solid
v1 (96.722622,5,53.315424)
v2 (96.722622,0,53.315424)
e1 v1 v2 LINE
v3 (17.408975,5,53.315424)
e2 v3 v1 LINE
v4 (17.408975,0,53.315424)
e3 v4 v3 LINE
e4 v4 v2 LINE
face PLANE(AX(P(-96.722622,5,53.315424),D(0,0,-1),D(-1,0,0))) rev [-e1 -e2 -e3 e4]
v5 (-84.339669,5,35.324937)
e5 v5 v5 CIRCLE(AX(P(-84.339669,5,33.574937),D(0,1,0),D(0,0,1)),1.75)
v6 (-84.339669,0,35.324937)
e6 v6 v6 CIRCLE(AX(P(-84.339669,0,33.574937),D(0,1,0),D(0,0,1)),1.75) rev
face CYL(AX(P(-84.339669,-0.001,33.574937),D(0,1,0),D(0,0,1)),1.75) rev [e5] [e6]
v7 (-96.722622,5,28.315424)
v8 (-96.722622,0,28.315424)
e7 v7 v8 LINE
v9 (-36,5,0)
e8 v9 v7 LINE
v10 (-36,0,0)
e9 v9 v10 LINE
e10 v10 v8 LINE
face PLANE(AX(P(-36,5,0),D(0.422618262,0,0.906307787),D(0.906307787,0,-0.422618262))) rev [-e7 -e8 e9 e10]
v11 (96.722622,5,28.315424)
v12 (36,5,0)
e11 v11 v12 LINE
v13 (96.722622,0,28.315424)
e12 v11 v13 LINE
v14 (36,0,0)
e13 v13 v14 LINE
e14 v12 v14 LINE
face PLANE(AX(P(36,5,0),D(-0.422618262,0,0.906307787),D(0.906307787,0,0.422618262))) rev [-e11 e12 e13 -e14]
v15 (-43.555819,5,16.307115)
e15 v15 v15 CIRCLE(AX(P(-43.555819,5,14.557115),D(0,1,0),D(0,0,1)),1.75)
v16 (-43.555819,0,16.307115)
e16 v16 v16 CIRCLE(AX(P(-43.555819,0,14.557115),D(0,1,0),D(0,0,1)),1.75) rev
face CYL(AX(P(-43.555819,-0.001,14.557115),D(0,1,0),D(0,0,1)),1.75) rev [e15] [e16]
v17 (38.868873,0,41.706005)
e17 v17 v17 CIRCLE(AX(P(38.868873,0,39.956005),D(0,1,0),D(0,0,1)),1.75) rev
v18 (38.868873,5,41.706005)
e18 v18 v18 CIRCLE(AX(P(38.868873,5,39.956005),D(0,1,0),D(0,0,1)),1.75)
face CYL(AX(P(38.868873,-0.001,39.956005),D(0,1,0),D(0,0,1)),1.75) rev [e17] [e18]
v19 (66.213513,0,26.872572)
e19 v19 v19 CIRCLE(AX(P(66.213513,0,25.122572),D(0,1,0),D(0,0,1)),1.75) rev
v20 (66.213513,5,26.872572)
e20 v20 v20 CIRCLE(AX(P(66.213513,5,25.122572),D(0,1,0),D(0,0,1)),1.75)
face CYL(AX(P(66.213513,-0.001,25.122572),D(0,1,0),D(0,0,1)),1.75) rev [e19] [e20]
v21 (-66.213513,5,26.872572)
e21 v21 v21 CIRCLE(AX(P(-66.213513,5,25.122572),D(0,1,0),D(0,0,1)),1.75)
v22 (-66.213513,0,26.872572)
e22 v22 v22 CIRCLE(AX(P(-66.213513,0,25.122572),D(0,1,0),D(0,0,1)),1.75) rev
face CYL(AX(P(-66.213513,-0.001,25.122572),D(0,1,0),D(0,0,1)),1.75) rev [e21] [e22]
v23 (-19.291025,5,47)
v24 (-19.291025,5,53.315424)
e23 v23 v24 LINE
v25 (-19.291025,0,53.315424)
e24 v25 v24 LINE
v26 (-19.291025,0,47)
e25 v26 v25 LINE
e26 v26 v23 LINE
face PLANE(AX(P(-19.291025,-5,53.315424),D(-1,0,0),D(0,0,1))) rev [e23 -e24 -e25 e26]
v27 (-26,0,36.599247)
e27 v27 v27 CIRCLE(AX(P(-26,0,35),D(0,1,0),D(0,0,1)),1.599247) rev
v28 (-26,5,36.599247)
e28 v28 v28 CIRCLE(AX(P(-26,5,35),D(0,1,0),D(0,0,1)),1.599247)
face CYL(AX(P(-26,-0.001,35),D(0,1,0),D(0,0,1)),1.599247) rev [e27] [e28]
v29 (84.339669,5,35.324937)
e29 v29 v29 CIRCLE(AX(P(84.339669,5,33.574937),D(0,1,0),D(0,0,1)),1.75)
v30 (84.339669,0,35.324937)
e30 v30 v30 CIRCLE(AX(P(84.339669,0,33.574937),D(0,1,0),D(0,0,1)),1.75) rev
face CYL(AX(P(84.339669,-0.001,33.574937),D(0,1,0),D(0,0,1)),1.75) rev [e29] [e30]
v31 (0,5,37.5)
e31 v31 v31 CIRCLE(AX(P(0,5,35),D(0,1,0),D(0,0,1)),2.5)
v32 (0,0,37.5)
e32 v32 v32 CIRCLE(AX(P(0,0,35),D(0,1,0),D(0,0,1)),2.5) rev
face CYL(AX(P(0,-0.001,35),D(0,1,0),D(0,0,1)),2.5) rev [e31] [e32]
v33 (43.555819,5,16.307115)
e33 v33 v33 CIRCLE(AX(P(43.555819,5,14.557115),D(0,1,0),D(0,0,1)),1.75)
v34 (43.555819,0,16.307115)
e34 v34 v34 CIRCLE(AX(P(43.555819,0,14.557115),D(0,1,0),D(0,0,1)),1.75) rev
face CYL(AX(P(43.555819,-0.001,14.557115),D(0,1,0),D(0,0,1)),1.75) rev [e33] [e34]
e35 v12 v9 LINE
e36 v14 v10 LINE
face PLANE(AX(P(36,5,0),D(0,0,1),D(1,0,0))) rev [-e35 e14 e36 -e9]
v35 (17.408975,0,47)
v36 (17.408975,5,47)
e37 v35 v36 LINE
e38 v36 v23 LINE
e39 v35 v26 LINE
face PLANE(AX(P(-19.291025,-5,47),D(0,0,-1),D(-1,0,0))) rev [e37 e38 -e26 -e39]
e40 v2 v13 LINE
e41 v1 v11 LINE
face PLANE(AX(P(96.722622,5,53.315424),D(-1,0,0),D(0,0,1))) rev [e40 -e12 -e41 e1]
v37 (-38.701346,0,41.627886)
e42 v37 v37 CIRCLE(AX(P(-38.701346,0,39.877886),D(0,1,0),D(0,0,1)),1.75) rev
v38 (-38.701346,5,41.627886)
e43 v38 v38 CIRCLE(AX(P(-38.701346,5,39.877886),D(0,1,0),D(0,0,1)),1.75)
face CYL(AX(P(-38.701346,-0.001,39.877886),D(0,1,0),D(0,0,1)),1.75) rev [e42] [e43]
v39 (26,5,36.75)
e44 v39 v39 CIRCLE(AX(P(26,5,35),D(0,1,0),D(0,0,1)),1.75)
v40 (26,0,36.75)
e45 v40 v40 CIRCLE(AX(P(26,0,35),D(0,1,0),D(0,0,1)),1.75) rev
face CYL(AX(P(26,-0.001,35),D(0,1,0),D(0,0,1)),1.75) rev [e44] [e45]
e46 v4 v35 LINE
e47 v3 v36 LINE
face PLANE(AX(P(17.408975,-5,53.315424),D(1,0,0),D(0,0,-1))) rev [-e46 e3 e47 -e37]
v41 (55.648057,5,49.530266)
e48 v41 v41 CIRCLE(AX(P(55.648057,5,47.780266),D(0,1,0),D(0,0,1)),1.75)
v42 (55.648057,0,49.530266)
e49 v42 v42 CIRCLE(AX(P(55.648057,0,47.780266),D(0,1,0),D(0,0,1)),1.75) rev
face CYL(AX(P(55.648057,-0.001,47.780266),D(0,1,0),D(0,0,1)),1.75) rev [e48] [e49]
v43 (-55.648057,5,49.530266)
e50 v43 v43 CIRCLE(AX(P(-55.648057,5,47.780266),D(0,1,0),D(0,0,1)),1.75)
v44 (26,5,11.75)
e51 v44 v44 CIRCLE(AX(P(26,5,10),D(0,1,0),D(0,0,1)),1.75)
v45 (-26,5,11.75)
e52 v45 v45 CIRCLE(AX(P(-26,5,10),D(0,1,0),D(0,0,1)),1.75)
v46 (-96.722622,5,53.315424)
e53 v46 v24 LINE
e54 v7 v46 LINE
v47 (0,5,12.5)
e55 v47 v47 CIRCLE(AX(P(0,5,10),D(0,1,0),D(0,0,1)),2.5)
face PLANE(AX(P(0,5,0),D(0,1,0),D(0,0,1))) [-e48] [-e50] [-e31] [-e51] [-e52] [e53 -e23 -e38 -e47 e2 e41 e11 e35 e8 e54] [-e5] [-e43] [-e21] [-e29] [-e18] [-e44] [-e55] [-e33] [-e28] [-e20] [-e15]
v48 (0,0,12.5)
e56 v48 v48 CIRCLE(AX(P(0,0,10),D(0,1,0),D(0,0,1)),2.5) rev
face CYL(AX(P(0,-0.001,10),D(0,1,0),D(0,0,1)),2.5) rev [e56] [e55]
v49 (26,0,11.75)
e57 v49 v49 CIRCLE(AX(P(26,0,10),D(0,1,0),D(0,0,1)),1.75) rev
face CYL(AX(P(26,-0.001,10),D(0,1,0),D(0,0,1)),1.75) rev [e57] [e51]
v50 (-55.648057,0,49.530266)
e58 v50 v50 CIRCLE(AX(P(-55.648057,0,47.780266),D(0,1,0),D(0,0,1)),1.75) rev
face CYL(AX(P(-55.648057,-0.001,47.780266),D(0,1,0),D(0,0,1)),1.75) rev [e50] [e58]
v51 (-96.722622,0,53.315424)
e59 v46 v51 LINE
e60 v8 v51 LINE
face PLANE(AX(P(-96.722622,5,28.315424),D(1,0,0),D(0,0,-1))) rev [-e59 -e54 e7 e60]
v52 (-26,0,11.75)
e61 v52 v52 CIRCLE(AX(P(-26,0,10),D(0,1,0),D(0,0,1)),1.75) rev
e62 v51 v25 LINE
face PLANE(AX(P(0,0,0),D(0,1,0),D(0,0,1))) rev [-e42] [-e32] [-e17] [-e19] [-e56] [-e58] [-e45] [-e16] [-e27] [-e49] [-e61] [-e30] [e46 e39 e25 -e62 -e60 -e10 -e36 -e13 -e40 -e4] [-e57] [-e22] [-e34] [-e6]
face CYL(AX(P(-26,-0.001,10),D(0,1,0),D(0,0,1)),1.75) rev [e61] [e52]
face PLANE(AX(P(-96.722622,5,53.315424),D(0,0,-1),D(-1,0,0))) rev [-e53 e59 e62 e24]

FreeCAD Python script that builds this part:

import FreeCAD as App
import Part
import Sketcher

V = App.Vector
Q = App.Units.Quantity


def add_polygon(sketch, points):
    """Adds a closed chain of lines whose ends are joined by coincident constraints."""
    first, n = sketch.GeometryCount, len(points)
    for a, b in zip(points, points[1:] + points[:1]):
        sketch.addGeometry(Part.LineSegment(App.Vector(*a, 0), App.Vector(*b, 0)), False)
    for i in range(n):
        sketch.addConstraint(Sketcher.Constraint("Coincident", first + i, 2, first + (i + 1) % n, 1))

doc = App.newDocument("Part")
body = doc.addObject("PartDesign::Body", "Body")

sketch1 = body.newObject("Sketcher::SketchObject", "Sketch")
sketch1.AttachmentSupport = (doc.getObject("XZ_Plane"), [""])
sketch1.MapMode = "FlatFace"
add_polygon(sketch1, [(36, 0), (-36, 0), (-97, 28), (-97, 53), (97, 53), (97, 28)])
sketch1.addConstraint(Sketcher.Constraint("Horizontal", 0))
sketch1.addConstraint(Sketcher.Constraint("Vertical", 2))
sketch1.addConstraint(Sketcher.Constraint("Horizontal", 3))
sketch1.addConstraint(Sketcher.Constraint("Vertical", 4))
sketch1.addConstraint(Sketcher.Constraint("Symmetric", 0, 2, 5, 2, -1, 1))
sketch1.addConstraint(Sketcher.Constraint("Symmetric", 1, 2, 4, 2, -2))
sketch1.addConstraint(Sketcher.Constraint("DistanceX", 0, 2, 0, 1, Q("72 mm")))
sketch1.addConstraint(Sketcher.Constraint("DistanceY", 2, 1, 2, 2, Q("25 mm")))
sketch1.addConstraint(Sketcher.Constraint("Angle", 1, Q("155 deg")))
sketch1.addConstraint(Sketcher.Constraint("Distance", 1, Q("67 mm")))
pad1 = body.newObject("PartDesign::Pad", "Pad")
pad1.Profile = sketch1
pad1.Length = 5
pad1.Reversed = True

sketch2 = body.newObject("Sketcher::SketchObject", "Sketch001")
sketch2.AttachmentSupport = (doc.getObject("XZ_Plane"), [""])
sketch2.MapMode = "FlatFace"
sketch2.AttachmentOffset = App.Placement(V(0, 0, -5), App.Rotation())
sketch2.addGeometry(Part.Circle(V(-84.3, 33.6, 0), V(0, 0, 1), 1.8), False)
sketch2.addConstraint(Sketcher.Constraint("Diameter", 0, Q("3.5 mm")))
sketch2.addConstraint(Sketcher.Constraint("DistanceX", 0, 3, -1, 1, Q("84.339669 mm")))
sketch2.addConstraint(Sketcher.Constraint("DistanceY", -1, 1, 0, 3, Q("33.574937 mm")))
pocket1 = body.newObject("PartDesign::Pocket", "Pocket")
pocket1.Profile = sketch2
pocket1.Type = "UpToFirst"
pocket1.Reversed = True

sketch3 = body.newObject("Sketcher::SketchObject", "Sketch002")
sketch3.AttachmentSupport = (doc.getObject("XZ_Plane"), [""])
sketch3.MapMode = "FlatFace"
sketch3.AttachmentOffset = App.Placement(V(0, 0, -5), App.Rotation())
sketch3.addGeometry(Part.Circle(V(-66.2, 25.1, 0), V(0, 0, 1), 1.8), False)
sketch3.addConstraint(Sketcher.Constraint("Diameter", 0, Q("3.5 mm")))
sketch3.addConstraint(Sketcher.Constraint("DistanceY", -1, 1, 0, 3, Q("25.122572 mm")))
sketch3.addConstraint(Sketcher.Constraint("DistanceX", 0, 3, -1, 1, Q("66.213513 mm")))
pocket2 = body.newObject("PartDesign::Pocket", "Pocket001")
pocket2.Profile = sketch3
pocket2.Type = "UpToFirst"
pocket2.Reversed = True

sketch4 = body.newObject("Sketcher::SketchObject", "Sketch003")
sketch4.AttachmentSupport = (doc.getObject("XZ_Plane"), [""])
sketch4.MapMode = "FlatFace"
sketch4.AttachmentOffset = App.Placement(V(0, 0, -5), App.Rotation())
sketch4.addGeometry(Part.Circle(V(-55.6, 47.8, 0), V(0, 0, 1), 1.8), False)
sketch4.addConstraint(Sketcher.Constraint("Diameter", 0, Q("3.5 mm")))
sketch4.addConstraint(Sketcher.Constraint("DistanceX", 0, 3, -1, 1, Q("55.648057 mm")))
sketch4.addConstraint(Sketcher.Constraint("DistanceY", -1, 1, 0, 3, Q("47.780266 mm")))
pocket3 = body.newObject("PartDesign::Pocket", "Pocket002")
pocket3.Profile = sketch4
pocket3.Type = "UpToFirst"
pocket3.Reversed = True

sketch5 = body.newObject("Sketcher::SketchObject", "Sketch004")
sketch5.AttachmentSupport = (doc.getObject("XZ_Plane"), [""])
sketch5.MapMode = "FlatFace"
sketch5.AttachmentOffset = App.Placement(V(0, 0, -5), App.Rotation())
sketch5.addGeometry(Part.Circle(V(-38.7, 39.9, 0), V(0, 0, 1), 1.8), False)
sketch5.addConstraint(Sketcher.Constraint("Diameter", 0, Q("3.5 mm")))
sketch5.addConstraint(Sketcher.Constraint("DistanceX", 0, 3, -1, 1, Q("38.701346 mm")))
sketch5.addConstraint(Sketcher.Constraint("DistanceY", -1, 1, 0, 3, Q("39.877886 mm")))
pocket4 = body.newObject("PartDesign::Pocket", "Pocket003")
pocket4.Profile = sketch5
pocket4.Type = "UpToFirst"
pocket4.Reversed = True

sketch6 = body.newObject("Sketcher::SketchObject", "Sketch005")
sketch6.AttachmentSupport = (doc.getObject("XZ_Plane"), [""])
sketch6.MapMode = "FlatFace"
sketch6.AttachmentOffset = App.Placement(V(0, 0, -5), App.Rotation())
sketch6.addGeometry(Part.Circle(V(-43.6, 14.6, 0), V(0, 0, 1), 1.8), False)
sketch6.addConstraint(Sketcher.Constraint("Diameter", 0, Q("3.5 mm")))
sketch6.addConstraint(Sketcher.Constraint("DistanceX", 0, 3, -1, 1, Q("43.555819 mm")))
sketch6.addConstraint(Sketcher.Constraint("DistanceY", -1, 1, 0, 3, Q("14.557115 mm")))
pocket5 = body.newObject("PartDesign::Pocket", "Pocket004")
pocket5.Profile = sketch6
pocket5.Type = "UpToFirst"
pocket5.Reversed = True

sketch7 = body.newObject("Sketcher::SketchObject", "Sketch006")
sketch7.AttachmentSupport = (doc.getObject("XZ_Plane"), [""])
sketch7.MapMode = "FlatFace"
sketch7.AttachmentOffset = App.Placement(V(0, 0, -5), App.Rotation())
sketch7.addGeometry(Part.Circle(V(38.9, 40, 0), V(0, 0, 1), 1.8), False)
sketch7.addConstraint(Sketcher.Constraint("Diameter", 0, Q("3.5 mm")))
sketch7.addConstraint(Sketcher.Constraint("DistanceX", -1, 1, 0, 3, Q("38.868873 mm")))
sketch7.addConstraint(Sketcher.Constraint("DistanceY", -1, 1, 0, 3, Q("39.956005 mm")))
pocket6 = body.newObject("PartDesign::Pocket", "Pocket005")
pocket6.Profile = sketch7
pocket6.Type = "UpToFirst"
pocket6.Reversed = True

sketch8 = body.newObject("Sketcher::SketchObject", "Sketch007")
sketch8.AttachmentSupport = (doc.getObject("XZ_Plane"), [""])
sketch8.MapMode = "FlatFace"
sketch8.AttachmentOffset = App.Placement(V(0, 0, -5), App.Rotation())
sketch8.addGeometry(Part.Circle(V(55.6, 47.8, 0), V(0, 0, 1), 1.8), False)
sketch8.addConstraint(Sketcher.Constraint("Diameter", 0, Q("3.5 mm")))
sketch8.addConstraint(Sketcher.Constraint("DistanceX", -1, 1, 0, 3, Q("55.648057 mm")))
sketch8.addConstraint(Sketcher.Constraint("DistanceY", -1, 1, 0, 3, Q("47.780266 mm")))
pocket7 = body.newObject("PartDesign::Pocket", "Pocket006")
pocket7.Profile = sketch8
pocket7.Type = "UpToFirst"
pocket7.Reversed = True

sketch9 = body.newObject("Sketcher::SketchObject", "Sketch008")
sketch9.AttachmentSupport = (doc.getObject("XZ_Plane"), [""])
sketch9.MapMode = "FlatFace"
sketch9.AttachmentOffset = App.Placement(V(0, 0, -5), App.Rotation())
sketch9.addGeometry(Part.Circle(V(84.3, 33.6, 0), V(0, 0, 1), 1.8), False)
sketch9.addConstraint(Sketcher.Constraint("Diameter", 0, Q("3.5 mm")))
sketch9.addConstraint(Sketcher.Constraint("DistanceX", -1, 1, 0, 3, Q("84.339669 mm")))
sketch9.addConstraint(Sketcher.Constraint("DistanceY", -1, 1, 0, 3, Q("33.574937 mm")))
pocket8 = body.newObject("PartDesign::Pocket", "Pocket007")
pocket8.Profile = sketch9
pocket8.Type = "UpToFirst"
pocket8.Reversed = True

sketch10 = body.newObject("Sketcher::SketchObject", "Sketch009")
sketch10.AttachmentSupport = (doc.getObject("XZ_Plane"), [""])
sketch10.MapMode = "FlatFace"
sketch10.AttachmentOffset = App.Placement(V(0, 0, -5), App.Rotation())
sketch10.addGeometry(Part.Circle(V(66.2, 25.1, 0), V(0, 0, 1), 1.8), False)
sketch10.addConstraint(Sketcher.Constraint("Diameter", 0, Q("3.5 mm")))
sketch10.addConstraint(Sketcher.Constraint("DistanceY", -1, 1, 0, 3, Q("25.122572 mm")))
sketch10.addConstraint(Sketcher.Constraint("DistanceX", -1, 1, 0, 3, Q("66.213513 mm")))
pocket9 = body.newObject("PartDesign::Pocket", "Pocket008")
pocket9.Profile = sketch10
pocket9.Type = "UpToFirst"
pocket9.Reversed = True

sketch11 = body.newObject("Sketcher::SketchObject", "Sketch010")
sketch11.AttachmentSupport = (doc.getObject("XZ_Plane"), [""])
sketch11.MapMode = "FlatFace"
sketch11.AttachmentOffset = App.Placement(V(0, 0, -5), App.Rotation())
sketch11.addGeometry(Part.Circle(V(43.6, 14.6, 0), V(0, 0, 1), 1.8), False)
sketch11.addConstraint(Sketcher.Constraint("Diameter", 0, Q("3.5 mm")))
sketch11.addConstraint(Sketcher.Constraint("DistanceX", -1, 1, 0, 3, Q("43.555819 mm")))
sketch11.addConstraint(Sketcher.Constraint("DistanceY", -1, 1, 0, 3, Q("14.557115 mm")))
pocket10 = body.newObject("PartDesign::Pocket", "Pocket009")
pocket10.Profile = sketch11
pocket10.Type = "UpToFirst"
pocket10.Reversed = True

sketch12 = body.newObject("Sketcher::SketchObject", "Sketch011")
sketch12.AttachmentSupport = (doc.getObject("XZ_Plane"), [""])
sketch12.MapMode = "FlatFace"
sketch12.AttachmentOffset = App.Placement(V(0, 0, -5), App.Rotation())
sketch12.addGeometry(Part.Circle(V(0, 10, 0), V(0, 0, 1), 2.5), False)
sketch12.addConstraint(Sketcher.Constraint("PointOnObject", 0, 3, -2))
sketch12.addConstraint(Sketcher.Constraint("Diameter", 0, Q("5 mm")))
sketch12.addConstraint(Sketcher.Constraint("DistanceY", -1, 1, 0, 3, Q("10 mm")))
pocket11 = body.newObject("PartDesign::Pocket", "Pocket010")
pocket11.Profile = sketch12
pocket11.Type = "UpToFirst"
pocket11.Reversed = True

sketch13 = body.newObject("Sketcher::SketchObject", "Sketch012")
sketch13.AttachmentSupport = (doc.getObject("XZ_Plane"), [""])
sketch13.MapMode = "FlatFace"
sketch13.AttachmentOffset = App.Placement(V(0, 0, -5), App.Rotation())
sketch13.addGeometry(Part.Circle(V(0, 35, 0), V(0, 0, 1), 2.5), False)
sketch13.addConstraint(Sketcher.Constraint("PointOnObject", 0, 3, -2))
sketch13.addConstraint(Sketcher.Constraint("Diameter", 0, Q("5 mm")))
sketch13.addConstraint(Sketcher.Constraint("DistanceY", -1, 1, 0, 3, Q("35 mm")))
pocket12 = body.newObject("PartDesign::Pocket", "Pocket011")
pocket12.Profile = sketch13
pocket12.Type = "UpToFirst"
pocket12.Reversed = True

sketch14 = body.newObject("Sketcher::SketchObject", "Sketch013")
sketch14.AttachmentSupport = (doc.getObject("XZ_Plane"), [""])
sketch14.MapMode = "FlatFace"
sketch14.AttachmentOffset = App.Placement(V(0, 0, -5), App.Rotation())
sketch14.addGeometry(Part.Circle(V(26, 10, 0), V(0, 0, 1), 1.8), False)
sketch14.addConstraint(Sketcher.Constraint("Diameter", 0, Q("3.5 mm")))
sketch14.addConstraint(Sketcher.Constraint("DistanceX", -1, 1, 0, 3, Q("26 mm")))
sketch14.addConstraint(Sketcher.Constraint("DistanceY", -1, 1, 0, 3, Q("10 mm")))
pocket13 = body.newObject("PartDesign::Pocket", "Pocket012")
pocket13.Profile = sketch14
pocket13.Type = "UpToFirst"
pocket13.Reversed = True

sketch15 = body.newObject("Sketcher::SketchObject", "Sketch014")
sketch15.AttachmentSupport = (doc.getObject("XZ_Plane"), [""])
sketch15.MapMode = "FlatFace"
sketch15.AttachmentOffset = App.Placement(V(0, 0, -5), App.Rotation())
sketch15.addGeometry(Part.Circle(V(26, 35, 0), V(0, 0, 1), 1.8), False)
sketch15.addConstraint(Sketcher.Constraint("Diameter", 0, Q("3.5 mm")))
sketch15.addConstraint(Sketcher.Constraint("DistanceX", -1, 1, 0, 3, Q("26 mm")))
sketch15.addConstraint(Sketcher.Constraint("DistanceY", -1, 1, 0, 3, Q("35 mm")))
pocket14 = body.newObject("PartDesign::Pocket", "Pocket013")
pocket14.Profile = sketch15
pocket14.Type = "UpToFirst"
pocket14.Reversed = True

sketch16 = body.newObject("Sketcher::SketchObject", "Sketch015")
sketch16.AttachmentSupport = (doc.getObject("XZ_Plane"), [""])
sketch16.MapMode = "FlatFace"
sketch16.AttachmentOffset = App.Placement(V(0, 0, -5), App.Rotation())
sketch16.addGeometry(Part.Circle(V(-26, 10, 0), V(0, 0, 1), 1.8), False)
sketch16.addConstraint(Sketcher.Constraint("Diameter", 0, Q("3.5 mm")))
sketch16.addConstraint(Sketcher.Constraint("DistanceX", 0, 3, -1, 1, Q("26 mm")))
sketch16.addConstraint(Sketcher.Constraint("DistanceY", -1, 1, 0, 3, Q("10 mm")))
pocket15 = body.newObject("PartDesign::Pocket", "Pocket014")
pocket15.Profile = sketch16
pocket15.Type = "UpToFirst"
pocket15.Reversed = True

sketch17 = body.newObject("Sketcher::SketchObject", "Sketch016")
sketch17.AttachmentSupport = (doc.getObject("XZ_Plane"), [""])
sketch17.MapMode = "FlatFace"
sketch17.AttachmentOffset = App.Placement(V(0, 0, -5), App.Rotation())
sketch17.addGeometry(Part.Circle(V(-26, 35, 0), V(0, 0, 1), 1.6), False)
sketch17.addConstraint(Sketcher.Constraint("DistanceX", 0, 3, -1, 1, Q("26 mm")))
sketch17.addConstraint(Sketcher.Constraint("DistanceY", -1, 1, 0, 3, Q("35 mm")))
sketch17.addConstraint(Sketcher.Constraint("Diameter", 0, Q("3.198494 mm")))
pocket16 = body.newObject("PartDesign::Pocket", "Pocket015")
pocket16.Profile = sketch17
pocket16.Type = "UpToFirst"
pocket16.Reversed = True

sketch18 = body.newObject("Sketcher::SketchObject", "Sketch017")
sketch18.AttachmentSupport = (doc.getObject("XZ_Plane"), [""])
sketch18.MapMode = "FlatFace"
sketch18.AttachmentOffset = App.Placement(V(0, 0, -5), App.Rotation())
add_polygon(sketch18, [(-19, 47), (-19, 53), (17, 53), (17, 47)])
sketch18.addConstraint(Sketcher.Constraint("Vertical", 0))
sketch18.addConstraint(Sketcher.Constraint("Horizontal", 1))
sketch18.addConstraint(Sketcher.Constraint("Vertical", 2))
sketch18.addConstraint(Sketcher.Constraint("Horizontal", 3))
sketch18.addConstraint(Sketcher.Constraint("DistanceX", 1, 1, 1, 2, Q("36.7 mm")))
sketch18.addConstraint(Sketcher.Constraint("DistanceY", -1, 1, 2, 2, Q("47 mm")))
sketch18.addConstraint(Sketcher.Constraint("DistanceY", 0, 1, 0, 2, Q("6.315424 mm")))
sketch18.addConstraint(Sketcher.Constraint("DistanceX", 0, 2, -1, 1, Q("19.291025 mm")))
pocket17 = body.newObject("PartDesign::Pocket", "Pocket016")
pocket17.Profile = sketch18
pocket17.Length = 10
pocket17.Reversed = True

doc.recompute()
